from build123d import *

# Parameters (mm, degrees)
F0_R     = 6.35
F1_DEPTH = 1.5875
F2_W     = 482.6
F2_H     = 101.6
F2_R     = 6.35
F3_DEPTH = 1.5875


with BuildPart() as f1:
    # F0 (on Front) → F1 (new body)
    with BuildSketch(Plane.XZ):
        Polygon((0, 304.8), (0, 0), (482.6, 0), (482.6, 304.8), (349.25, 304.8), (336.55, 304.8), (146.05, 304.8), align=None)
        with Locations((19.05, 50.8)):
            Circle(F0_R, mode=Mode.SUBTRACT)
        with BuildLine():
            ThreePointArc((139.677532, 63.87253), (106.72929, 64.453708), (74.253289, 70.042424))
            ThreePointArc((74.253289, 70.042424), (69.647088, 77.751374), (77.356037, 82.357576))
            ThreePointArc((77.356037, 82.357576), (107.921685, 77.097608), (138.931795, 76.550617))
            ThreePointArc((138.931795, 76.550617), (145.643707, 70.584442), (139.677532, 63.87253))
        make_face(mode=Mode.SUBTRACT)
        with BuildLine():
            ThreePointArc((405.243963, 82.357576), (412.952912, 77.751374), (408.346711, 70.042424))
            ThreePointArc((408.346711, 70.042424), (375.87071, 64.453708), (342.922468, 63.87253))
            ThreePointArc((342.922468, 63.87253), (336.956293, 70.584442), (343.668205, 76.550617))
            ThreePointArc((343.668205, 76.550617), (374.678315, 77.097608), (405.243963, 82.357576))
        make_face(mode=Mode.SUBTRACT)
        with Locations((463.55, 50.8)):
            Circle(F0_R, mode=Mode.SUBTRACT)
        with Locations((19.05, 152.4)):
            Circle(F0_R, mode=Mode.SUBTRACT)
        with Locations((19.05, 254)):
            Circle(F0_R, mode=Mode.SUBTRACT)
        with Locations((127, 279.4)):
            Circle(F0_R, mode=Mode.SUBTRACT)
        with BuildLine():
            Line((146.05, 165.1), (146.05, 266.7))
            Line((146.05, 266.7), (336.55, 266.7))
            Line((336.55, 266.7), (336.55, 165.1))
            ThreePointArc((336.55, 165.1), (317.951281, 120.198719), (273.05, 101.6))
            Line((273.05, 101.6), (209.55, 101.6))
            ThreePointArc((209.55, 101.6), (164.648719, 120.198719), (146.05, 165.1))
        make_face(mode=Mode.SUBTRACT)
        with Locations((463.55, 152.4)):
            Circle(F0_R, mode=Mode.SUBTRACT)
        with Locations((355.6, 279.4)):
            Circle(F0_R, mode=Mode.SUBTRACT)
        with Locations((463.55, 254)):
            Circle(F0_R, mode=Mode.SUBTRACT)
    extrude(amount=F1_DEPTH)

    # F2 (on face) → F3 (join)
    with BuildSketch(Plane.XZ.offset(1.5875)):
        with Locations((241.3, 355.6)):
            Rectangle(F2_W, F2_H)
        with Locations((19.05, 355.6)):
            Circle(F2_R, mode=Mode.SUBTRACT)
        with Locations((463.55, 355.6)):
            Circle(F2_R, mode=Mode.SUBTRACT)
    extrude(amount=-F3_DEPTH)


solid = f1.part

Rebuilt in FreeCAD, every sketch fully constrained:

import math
import FreeCAD as App
import Part
import Sketcher
Q = App.Units.Quantity


def add_polygon(sketch, points):
    """Adds a closed chain of lines whose ends are joined by coincident constraints."""
    first, n = sketch.GeometryCount, len(points)
    for a, b in zip(points, points[1:] + points[:1]):
        sketch.addGeometry(Part.LineSegment(App.Vector(*a, 0), App.Vector(*b, 0)), False)
    for i in range(n):
        sketch.addConstraint(Sketcher.Constraint("Coincident", first + i, 2, first + (i + 1) % n, 1))

doc = App.newDocument("Part")
params = doc.addObject("Spreadsheet::Sheet", "Params")
for row, (alias, value) in enumerate([
    ("sketch1_radius", "8 in"),
    ("sketch1_diameter", "0.5 in"),
    ("sketch1_radius2", "2.4999999 in"),
    ("sketch1_width", "19 in"),
    ("sketch1_height", "12 in"),
    ("pad1_length", "0.0625 in"),
    ("sketch2_diameter", "0.5 in"),
    ("sketch2_width", "19 in"),
    ("sketch2_height", "4 in"),
    ("pad2_length", "0.0625 in"),
], start=1):
    params.set(f"A{row}", alias)
    params.set(f"B{row}", "=" + value)
    params.setAlias(f"B{row}", alias)

body = doc.addObject("PartDesign::Body", "Body")

sketch1 = body.newObject("Sketcher::SketchObject", "Sketch")
sketch1.AttachmentSupport = (doc.getObject("XZ_Plane"), [""])
sketch1.MapMode = "FlatFace"
add_polygon(sketch1, [(0, 304.8), (0, 0), (482.6, 0), (482.6, 304.8)])
sketch1.addGeometry(Part.Circle(App.Vector(19.05, 50.8, 0), App.Vector(0, 0, 1), 6.35), False)
sketch1.addGeometry(Part.ArcOfCircle(Part.Circle(App.Vector(139.304664, 70.211574, 0), App.Vector(0, 0, 1), 6.35), math.radians(-86.633687), math.radians(93.366313)), False)
sketch1.addGeometry(Part.ArcOfCircle(Part.Circle(App.Vector(127, 279.400003, 0), App.Vector(0, 0, 1), 215.900004), math.radians(-104.14111), math.radians(-86.633686)), False)
sketch1.addGeometry(Part.ArcOfCircle(Part.Circle(App.Vector(75.804664, 76.2, 0), App.Vector(0, 0, 1), 6.35), math.radians(75.858898), math.radians(255.85888)), False)
sketch1.addGeometry(Part.ArcOfCircle(Part.Circle(App.Vector(127, 279.400001, 0), App.Vector(0, 0, 1), 203.200001), math.radians(-104.14111), math.radians(-86.633686)), False)
sketch1.addGeometry(Part.Circle(App.Vector(19.05, 152.4, 0), App.Vector(0, 0, 1), 6.35), False)
sketch1.addGeometry(Part.ArcOfCircle(Part.Circle(App.Vector(355.6, 279.400001, 0), App.Vector(0, 0, 1), 203.200001), math.radians(-93.366314), math.radians(-75.85889)), False)
sketch1.addGeometry(Part.ArcOfCircle(Part.Circle(App.Vector(406.795336, 76.2, 0), App.Vector(0, 0, 1), 6.35), math.radians(-75.85888), math.radians(104.141102)), False)
sketch1.addGeometry(Part.ArcOfCircle(Part.Circle(App.Vector(355.6, 279.400003, 0), App.Vector(0, 0, 1), 215.900004), math.radians(-93.366314), math.radians(-75.85889)), False)
sketch1.addGeometry(Part.ArcOfCircle(Part.Circle(App.Vector(343.295337, 70.211574, 0), App.Vector(0, 0, 1), 6.35), math.radians(86.633687), math.radians(266.633687)), False)
sketch1.addGeometry(Part.Circle(App.Vector(463.55, 50.8, 0), App.Vector(0, 0, 1), 6.35), False)
sketch1.addGeometry(Part.Circle(App.Vector(463.55, 152.4, 0), App.Vector(0, 0, 1), 6.35), False)
sketch1.addGeometry(Part.ArcOfCircle(Part.Circle(App.Vector(209.549999, 165.099999, 0), App.Vector(0, 0, 1), 63.499999), math.radians(179.999999), math.radians(270.000001)), False)
sketch1.addGeometry(Part.LineSegment(App.Vector(146.05, 165.1, 0), App.Vector(146.05, 266.7, 0)), False)
sketch1.addGeometry(Part.LineSegment(App.Vector(146.05, 266.7, 0), App.Vector(336.55, 266.7, 0)), False)
sketch1.addGeometry(Part.LineSegment(App.Vector(336.55, 266.7, 0), App.Vector(336.55, 165.1, 0)), False)
sketch1.addGeometry(Part.ArcOfCircle(Part.Circle(App.Vector(273.050001, 165.099999, 0), App.Vector(0, 0, 1), 63.499999), math.radians(-90.000001), math.radians(0.000001)), False)
sketch1.addGeometry(Part.LineSegment(App.Vector(273.05, 101.6, 0), App.Vector(209.55, 101.6, 0)), False)
sketch1.addGeometry(Part.Circle(App.Vector(19.05, 254, 0), App.Vector(0, 0, 1), 6.35), False)
sketch1.addGeometry(Part.Circle(App.Vector(127, 279.4, 0), App.Vector(0, 0, 1), 6.35), False)
sketch1.addGeometry(Part.Circle(App.Vector(355.6, 279.4, 0), App.Vector(0, 0, 1), 6.35), False)
sketch1.addGeometry(Part.Circle(App.Vector(463.55, 254, 0), App.Vector(0, 0, 1), 6.35), False)
sketch1.addConstraint(Sketcher.Constraint("Tangent", 5, 1, 6, 2))
sketch1.addConstraint(Sketcher.Constraint("Tangent", 6, 1, 7, 2))
sketch1.addConstraint(Sketcher.Constraint("Tangent", 7, 1, 8, 1))
sketch1.addConstraint(Sketcher.Constraint("Tangent", 8, 2, 5, 2))
sketch1.addConstraint(Sketcher.Constraint("Tangent", 10, 2, 11, 2))
sketch1.addConstraint(Sketcher.Constraint("Tangent", 11, 1, 12, 2))
sketch1.addConstraint(Sketcher.Constraint("Tangent", 12, 1, 13, 2))
sketch1.addConstraint(Sketcher.Constraint("Tangent", 13, 1, 10, 1))
sketch1.addConstraint(Sketcher.Constraint("Tangent", 16, 1, 17, 1))
sketch1.addConstraint(Sketcher.Constraint("Coincident", 17, 2, 18, 1))
sketch1.addConstraint(Sketcher.Constraint("Coincident", 18, 2, 19, 1))
sketch1.addConstraint(Sketcher.Constraint("Tangent", 19, 2, 20, 2))
sketch1.addConstraint(Sketcher.Constraint("Tangent", 20, 1, 21, 1))
sketch1.addConstraint(Sketcher.Constraint("Tangent", 21, 2, 16, 2))
sketch1.addConstraint(Sketcher.Constraint("Vertical", 0))
sketch1.addConstraint(Sketcher.Constraint("Horizontal", 1))
sketch1.addConstraint(Sketcher.Constraint("Vertical", 2))
sketch1.addConstraint(Sketcher.Constraint("Horizontal", 3))
sketch1.addConstraint(Sketcher.Constraint("Vertical", 17))
sketch1.addConstraint(Sketcher.Constraint("Horizontal", 18))
sketch1.addConstraint(Sketcher.Constraint("Vertical", 19))
sketch1.addConstraint(Sketcher.Constraint("Horizontal", 21))
sketch1.addConstraint(Sketcher.Constraint("Coincident", 0, 2, -1, 1))
sketch1.addConstraint(Sketcher.Constraint("Coincident", 8, 3, 6, 3))
sketch1.addConstraint(Sketcher.Constraint("Coincident", 12, 3, 10, 3))
sketch1.addConstraint(Sketcher.Constraint("Coincident", 23, 3, 6, 3))
sketch1.addConstraint(Sketcher.Constraint("Coincident", 24, 3, 10, 3))
sketch1.addConstraint(Sketcher.Constraint("Equal", 4, 5))
sketch1.addConstraint(Sketcher.Constraint("Equal", 7, 9))
sketch1.addConstraint(Sketcher.Constraint("Equal", 8, 10))
sketch1.addConstraint(Sketcher.Constraint("Equal", 9, 11))
sketch1.addConstraint(Sketcher.Constraint("Equal", 13, 14))
sketch1.addConstraint(Sketcher.Constraint("Equal", 14, 15))
sketch1.addConstraint(Sketcher.Constraint("Equal", 16, 20))
sketch1.addConstraint(Sketcher.Constraint("Equal", 15, 22))
sketch1.addConstraint(Sketcher.Constraint("Equal", 22, 23))
sketch1.addConstraint(Sketcher.Constraint("Equal", 23, 24))
sketch1.addConstraint(Sketcher.Constraint("Equal", 24, 25))
sketch1.addConstraint(Sketcher.Constraint("Horizontal", 8, 3, 10, 3))
sketch1.addConstraint(Sketcher.Constraint("Horizontal", 7, 3, 11, 3))
sketch1.addConstraint(Sketcher.Constraint("Horizontal", 5, 3, 13, 3))
sketch1.addConstraint(Sketcher.Constraint("Horizontal", 4, 3, 14, 3))
sketch1.addConstraint(Sketcher.Constraint("Horizontal", 9, 3, 15, 3))
sketch1.addConstraint(Sketcher.Constraint("Horizontal", 22, 3, 25, 3))
sketch1.addConstraint(Sketcher.Constraint("Vertical", 4, 3, 9, 3))
sketch1.addConstraint(Sketcher.Constraint("Vertical", 14, 3, 15, 3))
sketch1.addConstraint(Sketcher.Constraint("Vertical", 9, 3, 22, 3))
sketch1.addConstraint(Sketcher.Constraint("Vertical", 15, 3, 25, 3))
sketch1.addConstraint(Sketcher.Constraint("Radius", 8, Q("8 in")))
sketch1.addConstraint(Sketcher.Constraint("Diameter", 4, Q("0.5 in")))
sketch1.addConstraint(Sketcher.Constraint("Radius", 16, Q("2.4999999 in")))
sketch1.addConstraint(Sketcher.Constraint("DistanceX", 1, 1, 1, 2, Q("19 in")))
sketch1.addConstraint(Sketcher.Constraint("DistanceY", 0, 2, 0, 1, Q("12 in")))
sketch1.addConstraint(Sketcher.Constraint("DistanceY", 17, 1, 17, 2, Q("4 in")))
sketch1.addConstraint(Sketcher.Constraint("DistanceX", 18, 1, 18, 2, Q("7.5 in")))
sketch1.addConstraint(Sketcher.Constraint("DistanceY", -1, 1, 4, 3, Q("2 in")))
sketch1.addConstraint(Sketcher.Constraint("DistanceX", -1, 1, 6, 3, Q("5 in")))
sketch1.addConstraint(Sketcher.Constraint("DistanceY", -1, 1, 6, 3, Q("11.0000001 in")))
sketch1.addConstraint(Sketcher.Constraint("DistanceY", -1, 1, 7, 3, Q("3 in")))
sketch1.addConstraint(Sketcher.Constraint("DistanceY", -1, 1, 9, 3, Q("6 in")))
sketch1.addConstraint(Sketcher.Constraint("DistanceX", -1, 1, 10, 3, Q("14 in")))
sketch1.addConstraint(Sketcher.Constraint("DistanceY", -1, 1, 22, 3, Q("10 in")))
sketch1.addConstraint(Sketcher.Constraint("DistanceY", -1, 1, 20, 1, Q("4 in")))
sketch1.addConstraint(Sketcher.Constraint("DistanceX", 18, 2, 25, 3, Q("5 in")))
sketch1.addConstraint(Sketcher.Constraint("DistanceX", 7, 3, 5, 3, Q("2.5 in")))
sketch1.addConstraint(Sketcher.Constraint("DistanceX", -1, 1, 4, 3, Q("0.75 in")))
sketch1.addConstraint(Sketcher.Constraint("DistanceX", -1, 1, 14, 3, Q("18.25 in")))
sketch1.setExpression("Constraints[52]", "Params.sketch1_radius")
sketch1.setExpression("Constraints[53]", "Params.sketch1_diameter")
sketch1.setExpression("Constraints[54]", "Params.sketch1_radius2")
sketch1.setExpression("Constraints[55]", "Params.sketch1_width")
sketch1.setExpression("Constraints[56]", "Params.sketch1_height")
pad1 = body.newObject("PartDesign::Pad", "Pad")
pad1.Profile = sketch1
pad1.setExpression("Length", "Params.pad1_length")

sketch2 = body.newObject("Sketcher::SketchObject", "Sketch001")
sketch2.AttachmentSupport = (doc.getObject("XZ_Plane"), [""])
sketch2.MapMode = "FlatFace"
sketch2.AttachmentOffset = App.Placement(App.Vector(0, 0, 0.0625 * 25.4), App.Rotation())
add_polygon(sketch2, [(0, 406.4), (0, 304.8), (482.6, 304.8), (482.6, 406.4)])
sketch2.addGeometry(Part.Circle(App.Vector(19.05, 355.6, 0), App.Vector(0, 0, 1), 6.35), False)
sketch2.addGeometry(Part.Circle(App.Vector(463.55, 355.6, 0), App.Vector(0, 0, 1), 6.35), False)
sketch2.addConstraint(Sketcher.Constraint("Vertical", 0))
sketch2.addConstraint(Sketcher.Constraint("Horizontal", 1))
sketch2.addConstraint(Sketcher.Constraint("Vertical", 2))
sketch2.addConstraint(Sketcher.Constraint("Horizontal", 3))
sketch2.addConstraint(Sketcher.Constraint("Equal", 4, 5))
sketch2.addConstraint(Sketcher.Constraint("PointOnObject", 0, 2, -2))
sketch2.addConstraint(Sketcher.Constraint("Horizontal", 4, 3, 5, 3))
sketch2.addConstraint(Sketcher.Constraint("Diameter", 4, Q("0.5 in")))
sketch2.addConstraint(Sketcher.Constraint("DistanceX", 1, 1, 1, 2, Q("19 in")))
sketch2.addConstraint(Sketcher.Constraint("DistanceY", 0, 2, 0, 1, Q("4 in")))
sketch2.addConstraint(Sketcher.Constraint("DistanceY", -1, 1, 4, 3, Q("14 in")))
sketch2.addConstraint(Sketcher.Constraint("DistanceY", -1, 1, 0, 2, Q("12 in")))
sketch2.addConstraint(Sketcher.Constraint("DistanceX", 4, 3, 5, 3, Q("17.5 in")))
sketch2.addConstraint(Sketcher.Constraint("DistanceX", -1, 1, 4, 3, Q("0.75 in")))
sketch2.setExpression("Constraints[11]", "Params.sketch2_diameter")
sketch2.setExpression("Constraints[12]", "Params.sketch2_width")
sketch2.setExpression("Constraints[13]", "Params.sketch2_height")
pad2 = body.newObject("PartDesign::Pad", "Pad001")
pad2.Profile = sketch2
pad2.setExpression("Length", "Params.pad2_length")
pad2.Reversed = True

doc.recompute()
